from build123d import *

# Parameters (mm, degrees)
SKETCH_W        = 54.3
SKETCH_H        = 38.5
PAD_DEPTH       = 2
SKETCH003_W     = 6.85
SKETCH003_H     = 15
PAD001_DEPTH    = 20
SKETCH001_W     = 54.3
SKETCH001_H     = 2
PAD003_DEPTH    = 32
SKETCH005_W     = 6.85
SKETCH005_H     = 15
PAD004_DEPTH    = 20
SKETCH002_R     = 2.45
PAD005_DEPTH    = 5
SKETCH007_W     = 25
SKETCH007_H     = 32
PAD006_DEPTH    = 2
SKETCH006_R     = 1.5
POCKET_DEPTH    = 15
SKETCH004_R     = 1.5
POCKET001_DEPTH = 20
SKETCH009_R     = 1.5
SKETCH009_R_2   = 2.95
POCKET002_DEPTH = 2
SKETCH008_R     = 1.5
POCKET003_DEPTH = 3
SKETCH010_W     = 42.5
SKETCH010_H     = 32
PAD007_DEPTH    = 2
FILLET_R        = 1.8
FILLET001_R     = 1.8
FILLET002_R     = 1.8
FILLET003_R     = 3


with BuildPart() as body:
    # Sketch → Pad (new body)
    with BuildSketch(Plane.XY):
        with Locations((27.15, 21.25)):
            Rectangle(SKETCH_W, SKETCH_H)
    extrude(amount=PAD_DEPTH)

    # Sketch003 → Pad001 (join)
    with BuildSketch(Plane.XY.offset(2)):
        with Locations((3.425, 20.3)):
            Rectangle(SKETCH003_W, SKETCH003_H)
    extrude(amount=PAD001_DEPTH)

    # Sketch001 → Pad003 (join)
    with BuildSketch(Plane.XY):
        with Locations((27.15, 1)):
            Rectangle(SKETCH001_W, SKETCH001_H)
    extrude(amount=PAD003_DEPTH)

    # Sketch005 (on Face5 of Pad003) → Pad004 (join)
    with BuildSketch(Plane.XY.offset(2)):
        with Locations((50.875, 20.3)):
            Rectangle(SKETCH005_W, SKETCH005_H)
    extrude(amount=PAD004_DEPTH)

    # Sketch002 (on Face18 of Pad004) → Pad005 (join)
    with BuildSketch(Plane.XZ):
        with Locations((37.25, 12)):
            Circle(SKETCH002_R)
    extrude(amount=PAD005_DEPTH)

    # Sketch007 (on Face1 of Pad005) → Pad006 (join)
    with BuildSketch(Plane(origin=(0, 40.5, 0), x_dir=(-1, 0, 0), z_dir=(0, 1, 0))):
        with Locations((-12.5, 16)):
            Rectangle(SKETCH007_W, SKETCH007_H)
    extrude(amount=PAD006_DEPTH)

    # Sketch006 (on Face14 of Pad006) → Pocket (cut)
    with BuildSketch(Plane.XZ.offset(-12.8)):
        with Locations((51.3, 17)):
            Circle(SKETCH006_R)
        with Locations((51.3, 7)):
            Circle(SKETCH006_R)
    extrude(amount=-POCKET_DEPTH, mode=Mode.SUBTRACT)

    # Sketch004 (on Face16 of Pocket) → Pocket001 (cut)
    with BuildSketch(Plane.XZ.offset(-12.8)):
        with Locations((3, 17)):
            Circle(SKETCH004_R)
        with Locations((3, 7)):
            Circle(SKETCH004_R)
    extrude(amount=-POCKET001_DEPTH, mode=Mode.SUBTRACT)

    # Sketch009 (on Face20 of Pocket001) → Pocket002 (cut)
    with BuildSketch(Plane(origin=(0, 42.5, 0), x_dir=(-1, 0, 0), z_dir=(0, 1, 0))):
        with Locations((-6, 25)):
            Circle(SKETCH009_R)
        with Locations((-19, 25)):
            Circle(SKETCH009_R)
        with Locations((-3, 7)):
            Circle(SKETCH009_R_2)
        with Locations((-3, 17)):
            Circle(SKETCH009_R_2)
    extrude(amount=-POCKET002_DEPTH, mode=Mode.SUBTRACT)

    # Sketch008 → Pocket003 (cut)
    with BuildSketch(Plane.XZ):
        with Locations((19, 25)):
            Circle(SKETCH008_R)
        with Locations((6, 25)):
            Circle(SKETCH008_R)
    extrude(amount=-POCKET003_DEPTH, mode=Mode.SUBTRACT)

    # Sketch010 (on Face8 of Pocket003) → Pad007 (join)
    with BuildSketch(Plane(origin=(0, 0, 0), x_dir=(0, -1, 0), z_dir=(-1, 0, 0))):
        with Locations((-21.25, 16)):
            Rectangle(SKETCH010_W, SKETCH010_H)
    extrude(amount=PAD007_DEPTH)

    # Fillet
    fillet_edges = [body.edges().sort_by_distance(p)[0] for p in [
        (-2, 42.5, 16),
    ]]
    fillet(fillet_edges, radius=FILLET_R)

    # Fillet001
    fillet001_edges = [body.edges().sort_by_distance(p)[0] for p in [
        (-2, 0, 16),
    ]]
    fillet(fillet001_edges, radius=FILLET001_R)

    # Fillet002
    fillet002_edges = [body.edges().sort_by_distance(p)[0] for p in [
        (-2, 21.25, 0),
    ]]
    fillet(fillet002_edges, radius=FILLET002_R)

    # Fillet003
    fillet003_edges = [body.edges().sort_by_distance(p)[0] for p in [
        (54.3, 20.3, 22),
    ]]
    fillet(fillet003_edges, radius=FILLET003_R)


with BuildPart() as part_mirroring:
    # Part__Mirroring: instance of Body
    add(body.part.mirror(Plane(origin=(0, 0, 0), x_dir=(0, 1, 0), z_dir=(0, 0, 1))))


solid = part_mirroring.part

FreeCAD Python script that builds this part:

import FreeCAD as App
import Part
import Sketcher

V = App.Vector
Q = App.Units.Quantity


def edges_at(feature, points):
    """Names of the edges that pass closest to the given points."""
    edges = feature.Shape.Edges
    near = lambda p: min(range(len(edges)), key=lambda i: edges[i].distToShape(Part.Vertex(*p))[0])
    return sorted({f"Edge{near(p) + 1}" for p in points})


def add_polygon(sketch, points):
    """Adds a closed chain of lines whose ends are joined by coincident constraints."""
    first, n = sketch.GeometryCount, len(points)
    for a, b in zip(points, points[1:] + points[:1]):
        sketch.addGeometry(Part.LineSegment(App.Vector(*a, 0), App.Vector(*b, 0)), False)
    for i in range(n):
        sketch.addConstraint(Sketcher.Constraint("Coincident", first + i, 2, first + (i + 1) % n, 1))

doc = App.newDocument("Part")
body = doc.addObject("PartDesign::Body", "Body")

# Sketch on XY plane
sketch1 = body.newObject("Sketcher::SketchObject", "Sketch")
sketch1.AttachmentSupport = (doc.getObject("XY_Plane"), [""])
sketch1.MapMode = "FlatFace"
add_polygon(sketch1, [(0, 40), (0, 2), (54, 2), (54, 40)])  # lines 0-3
sketch1.addConstraint(Sketcher.Constraint("Vertical", 0))
sketch1.addConstraint(Sketcher.Constraint("Horizontal", 1))
sketch1.addConstraint(Sketcher.Constraint("Vertical", 2))
sketch1.addConstraint(Sketcher.Constraint("Horizontal", 3))
sketch1.addConstraint(Sketcher.Constraint("PointOnObject", 0, 2, -2))
sketch1.addConstraint(Sketcher.Constraint("DistanceX", 1, 1, 1, 2, Q("54.3 mm")))
sketch1.addConstraint(Sketcher.Constraint("DistanceY", 0, 2, 0, 1, Q("38.5 mm")))
sketch1.addConstraint(Sketcher.Constraint("DistanceY", -1, 1, 0, 2, Q("2 mm")))
pad1 = body.newObject("PartDesign::Pad", "Pad")
pad1.Profile = sketch1
pad1.Length = 2

# Sketch on XY plane
sketch2 = body.newObject("Sketcher::SketchObject", "Sketch001")
sketch2.AttachmentSupport = (doc.getObject("XY_Plane"), [""])
sketch2.MapMode = "FlatFace"
sketch2.AttachmentOffset = App.Placement(V(0, 0, 2), App.Rotation())
add_polygon(sketch2, [(0, 28), (0, 13), (7, 13), (7, 28)])  # lines 0-3
sketch2.addConstraint(Sketcher.Constraint("Vertical", 0))
sketch2.addConstraint(Sketcher.Constraint("Horizontal", 1))
sketch2.addConstraint(Sketcher.Constraint("Vertical", 2))
sketch2.addConstraint(Sketcher.Constraint("Horizontal", 3))
sketch2.addConstraint(Sketcher.Constraint("PointOnObject", 0, 2, -2))
sketch2.addConstraint(Sketcher.Constraint("DistanceY", 0, 2, 0, 1, Q("15 mm")))
sketch2.addConstraint(Sketcher.Constraint("DistanceX", 1, 1, 1, 2, Q("6.85 mm")))
sketch2.addConstraint(Sketcher.Constraint("DistanceY", -1, 1, 0, 2, Q("12.8 mm")))
pad2 = body.newObject("PartDesign::Pad", "Pad001")
pad2.Profile = sketch2
pad2.Length = 20

# Sketch on XY plane
sketch3 = body.newObject("Sketcher::SketchObject", "Sketch002")
sketch3.AttachmentSupport = (doc.getObject("XY_Plane"), [""])
sketch3.MapMode = "FlatFace"
add_polygon(sketch3, [(0, 2), (0, 0), (54.3, 0), (54.3, 2)])  # lines 0-3
sketch3.addConstraint(Sketcher.Constraint("Vertical", 0))
sketch3.addConstraint(Sketcher.Constraint("Horizontal", 1))
sketch3.addConstraint(Sketcher.Constraint("Vertical", 2))
sketch3.addConstraint(Sketcher.Constraint("Horizontal", 3))
sketch3.addConstraint(Sketcher.Constraint("Coincident", 0, 2, -1, 1))
sketch3.addConstraint(Sketcher.Constraint("DistanceY", 0, 2, 0, 1, Q("2 mm")))
sketch3.addConstraint(Sketcher.Constraint("DistanceX", 1, 1, 1, 2, Q("54.3 mm")))
pad3 = body.newObject("PartDesign::Pad", "Pad002")
pad3.Profile = sketch3
pad3.Length = 32

# Sketch on XY plane
sketch4 = body.newObject("Sketcher::SketchObject", "Sketch003")
sketch4.AttachmentSupport = (doc.getObject("XY_Plane"), [""])
sketch4.MapMode = "FlatFace"
sketch4.AttachmentOffset = App.Placement(V(0, 0, 2), App.Rotation())
add_polygon(sketch4, [(47, 28), (47, 13), (54, 13), (54, 28)])  # lines 0-3
sketch4.addConstraint(Sketcher.Constraint("Vertical", 0))
sketch4.addConstraint(Sketcher.Constraint("Horizontal", 1))
sketch4.addConstraint(Sketcher.Constraint("Vertical", 2))
sketch4.addConstraint(Sketcher.Constraint("Horizontal", 3))
sketch4.addConstraint(Sketcher.Constraint("DistanceY", 0, 2, 0, 1, Q("15 mm")))
sketch4.addConstraint(Sketcher.Constraint("DistanceX", 1, 1, 1, 2, Q("6.85 mm")))
sketch4.addConstraint(Sketcher.Constraint("DistanceY", -1, 1, 0, 2, Q("12.8 mm")))
sketch4.addConstraint(Sketcher.Constraint("DistanceX", -1, 1, 1, 2, Q("54.3 mm")))
pad4 = body.newObject("PartDesign::Pad", "Pad003")
pad4.Profile = sketch4
pad4.Length = 20

# Sketch on XZ plane
sketch5 = body.newObject("Sketcher::SketchObject", "Sketch004")
sketch5.AttachmentSupport = (doc.getObject("XZ_Plane"), [""])
sketch5.MapMode = "FlatFace"
sketch5.addGeometry(Part.Circle(V(37.2, 12, 0), V(0, 0, 1), 2.5), False)
sketch5.addConstraint(Sketcher.Constraint("Diameter", 0, Q("4.9 mm")))
sketch5.addConstraint(Sketcher.Constraint("DistanceY", -1, 1, 0, 3, Q("12 mm")))
sketch5.addConstraint(Sketcher.Constraint("DistanceX", -1, 1, 0, 3, Q("37.25 mm")))
pad5 = body.newObject("PartDesign::Pad", "Pad004")
pad5.Profile = sketch5
pad5.Length = 5

# Sketch on XZ plane
sketch6 = body.newObject("Sketcher::SketchObject", "Sketch005")
sketch6.AttachmentSupport = (doc.getObject("XZ_Plane"), [""])
sketch6.MapMode = "FlatFace"
sketch6.AttachmentOffset = App.Placement(V(0, 0, -40.5), App.Rotation())
add_polygon(sketch6, [(25, 32), (25, 0), (0, 0), (0, 32)])  # lines 0-3
sketch6.addConstraint(Sketcher.Constraint("Vertical", 0))
sketch6.addConstraint(Sketcher.Constraint("Horizontal", 1))
sketch6.addConstraint(Sketcher.Constraint("Vertical", 2))
sketch6.addConstraint(Sketcher.Constraint("Horizontal", 3))
sketch6.addConstraint(Sketcher.Constraint("Coincident", 1, 2, -1, 1))
sketch6.addConstraint(Sketcher.Constraint("DistanceX", 1, 2, 1, 1, Q("25 mm")))
sketch6.addConstraint(Sketcher.Constraint("DistanceY", 0, 2, 0, 1, Q("32 mm")))
pad6 = body.newObject("PartDesign::Pad", "Pad005")
pad6.Profile = sketch6
pad6.Length = 2
pad6.Reversed = True

# Sketch on XZ plane
sketch7 = body.newObject("Sketcher::SketchObject", "Sketch006")
sketch7.AttachmentSupport = (doc.getObject("XZ_Plane"), [""])
sketch7.MapMode = "FlatFace"
sketch7.AttachmentOffset = App.Placement(V(0, 0, -12.8), App.Rotation())
sketch7.addGeometry(Part.Circle(V(51.3, 17, 0), V(0, 0, 1), 1.5), False)
sketch7.addGeometry(Part.Circle(V(51.3, 7, 0), V(0, 0, 1), 1.5), False)
sketch7.addConstraint(Sketcher.Constraint("Equal", 0, 1))
sketch7.addConstraint(Sketcher.Constraint("Vertical", 0, 3, 1, 3))
sketch7.addConstraint(Sketcher.Constraint("Diameter", 0, Q("3 mm")))
sketch7.addConstraint(Sketcher.Constraint("DistanceY", -1, 1, 0, 3, Q("17 mm")))
sketch7.addConstraint(Sketcher.Constraint("DistanceY", -1, 1, 1, 3, Q("7 mm")))
sketch7.addConstraint(Sketcher.Constraint("DistanceX", -1, 1, 0, 3, Q("51.3 mm")))
pocket1 = body.newObject("PartDesign::Pocket", "Pocket")
pocket1.Profile = sketch7
pocket1.Length = 15

# Sketch on XZ plane
sketch8 = body.newObject("Sketcher::SketchObject", "Sketch007")
sketch8.AttachmentSupport = (doc.getObject("XZ_Plane"), [""])
sketch8.MapMode = "FlatFace"
sketch8.AttachmentOffset = App.Placement(V(0, 0, -12.8), App.Rotation())
sketch8.addGeometry(Part.Circle(V(3, 17, 0), V(0, 0, 1), 1.5), False)
sketch8.addGeometry(Part.Circle(V(3, 7, 0), V(0, 0, 1), 1.5), False)
sketch8.addConstraint(Sketcher.Constraint("Equal", 0, 1))
sketch8.addConstraint(Sketcher.Constraint("Vertical", 0, 3, 1, 3))
sketch8.addConstraint(Sketcher.Constraint("Diameter", 0, Q("3 mm")))
sketch8.addConstraint(Sketcher.Constraint("DistanceX", -1, 1, 0, 3, Q("3 mm")))
sketch8.addConstraint(Sketcher.Constraint("DistanceY", -1, 1, 0, 3, Q("17 mm")))
sketch8.addConstraint(Sketcher.Constraint("DistanceY", -1, 1, 1, 3, Q("7 mm")))
pocket2 = body.newObject("PartDesign::Pocket", "Pocket001")
pocket2.Profile = sketch8
pocket2.Length = 20

# Sketch on XZ plane
sketch9 = body.newObject("Sketcher::SketchObject", "Sketch008")
sketch9.AttachmentSupport = (doc.getObject("XZ_Plane"), [""])
sketch9.MapMode = "FlatFace"
sketch9.AttachmentOffset = App.Placement(V(0, 0, -42.5), App.Rotation())
sketch9.addGeometry(Part.Circle(V(6, 25, 0), V(0, 0, 1), 1.5), False)
sketch9.addGeometry(Part.Circle(V(19, 25, 0), V(0, 0, 1), 1.5), False)
sketch9.addGeometry(Part.Circle(V(3, 7, 0), V(0, 0, 1), 3), False)
sketch9.addGeometry(Part.Circle(V(3, 17, 0), V(0, 0, 1), 3), False)
sketch9.addConstraint(Sketcher.Constraint("Equal", 0, 1))
sketch9.addConstraint(Sketcher.Constraint("Equal", 2, 3))
sketch9.addConstraint(Sketcher.Constraint("Horizontal", 0, 3, 1, 3))
sketch9.addConstraint(Sketcher.Constraint("Vertical", 2, 3, 3, 3))
sketch9.addConstraint(Sketcher.Constraint("Diameter", 0, Q("3 mm")))
sketch9.addConstraint(Sketcher.Constraint("Diameter", 2, Q("5.9 mm")))
sketch9.addConstraint(Sketcher.Constraint("DistanceX", -1, 1, 0, 3, Q("6 mm")))
sketch9.addConstraint(Sketcher.Constraint("DistanceY", -1, 1, 0, 3, Q("25 mm")))
sketch9.addConstraint(Sketcher.Constraint("DistanceX", -1, 1, 1, 3, Q("19 mm")))
sketch9.addConstraint(Sketcher.Constraint("DistanceX", -1, 1, 2, 3, Q("3 mm")))
sketch9.addConstraint(Sketcher.Constraint("DistanceY", -1, 1, 2, 3, Q("7 mm")))
sketch9.addConstraint(Sketcher.Constraint("DistanceY", -1, 1, 3, 3, Q("17 mm")))
pocket3 = body.newObject("PartDesign::Pocket", "Pocket002")
pocket3.Profile = sketch9
pocket3.Length = 2
pocket3.Reversed = True

# Sketch on XZ plane
sketch10 = body.newObject("Sketcher::SketchObject", "Sketch009")
sketch10.AttachmentSupport = (doc.getObject("XZ_Plane"), [""])
sketch10.MapMode = "FlatFace"
sketch10.addGeometry(Part.Circle(V(19, 25, 0), V(0, 0, 1), 1.5), False)
sketch10.addGeometry(Part.Circle(V(6, 25, 0), V(0, 0, 1), 1.5), False)
sketch10.addConstraint(Sketcher.Constraint("Equal", 0, 1))
sketch10.addConstraint(Sketcher.Constraint("Horizontal", 0, 3, 1, 3))
sketch10.addConstraint(Sketcher.Constraint("Diameter", 0, Q("3 mm")))
sketch10.addConstraint(Sketcher.Constraint("DistanceX", -1, 1, 0, 3, Q("19 mm")))
sketch10.addConstraint(Sketcher.Constraint("DistanceY", -1, 1, 0, 3, Q("25 mm")))
sketch10.addConstraint(Sketcher.Constraint("DistanceX", -1, 1, 1, 3, Q("6 mm")))
pocket4 = body.newObject("PartDesign::Pocket", "Pocket003")
pocket4.Profile = sketch10
pocket4.Length = 3

# Sketch on YZ plane
sketch11 = body.newObject("Sketcher::SketchObject", "Sketch010")
sketch11.AttachmentSupport = (doc.getObject("YZ_Plane"), [""])
sketch11.MapMode = "FlatFace"
add_polygon(sketch11, [(42, 32), (42, 0), (0, 0), (0, 32)])  # lines 0-3
sketch11.addConstraint(Sketcher.Constraint("Vertical", 0))
sketch11.addConstraint(Sketcher.Constraint("Horizontal", 1))
sketch11.addConstraint(Sketcher.Constraint("Vertical", 2))
sketch11.addConstraint(Sketcher.Constraint("Horizontal", 3))
sketch11.addConstraint(Sketcher.Constraint("Coincident", 1, 2, -1, 1))
sketch11.addConstraint(Sketcher.Constraint("DistanceY", 0, 2, 0, 1, Q("32 mm")))
sketch11.addConstraint(Sketcher.Constraint("DistanceX", 1, 2, 1, 1, Q("42.5 mm")))
pad7 = body.newObject("PartDesign::Pad", "Pad006")
pad7.Profile = sketch11
pad7.Length = 2
pad7.Reversed = True
doc.recompute()

fillet = body.newObject("PartDesign::Fillet", "Fillet")
fillet.Base = (pad7, edges_at(pad7, [(-2, 42.5, 16)]))
fillet.Radius = 1.8
doc.recompute()

fillet2 = body.newObject("PartDesign::Fillet", "Fillet001")
fillet2.Base = (fillet, edges_at(fillet, [(-2, 0, 16)]))
fillet2.Radius = 1.8
doc.recompute()

fillet3 = body.newObject("PartDesign::Fillet", "Fillet002")
fillet3.Base = (fillet2, edges_at(fillet2, [(-2, 21.25, 0)]))
fillet3.Radius = 1.8
doc.recompute()

fillet4 = body.newObject("PartDesign::Fillet", "Fillet003")
fillet4.Base = (fillet3, edges_at(fillet3, [(54.3, 20.3, 22)]))
fillet4.Radius = 3
body2 = doc.addObject("PartDesign::Body", "Body001")
doc.recompute()

mirroring = doc.addObject("Part::Mirroring", "Mirroring")
mirroring.Source = body
mirroring.Base = V(0, 0, 0)
mirroring.Normal = V(0, 0, 1)
body2.BaseFeature = mirroring
doc.recompute()
body.Visibility = False
mirroring.Visibility = False

doc.recompute()
